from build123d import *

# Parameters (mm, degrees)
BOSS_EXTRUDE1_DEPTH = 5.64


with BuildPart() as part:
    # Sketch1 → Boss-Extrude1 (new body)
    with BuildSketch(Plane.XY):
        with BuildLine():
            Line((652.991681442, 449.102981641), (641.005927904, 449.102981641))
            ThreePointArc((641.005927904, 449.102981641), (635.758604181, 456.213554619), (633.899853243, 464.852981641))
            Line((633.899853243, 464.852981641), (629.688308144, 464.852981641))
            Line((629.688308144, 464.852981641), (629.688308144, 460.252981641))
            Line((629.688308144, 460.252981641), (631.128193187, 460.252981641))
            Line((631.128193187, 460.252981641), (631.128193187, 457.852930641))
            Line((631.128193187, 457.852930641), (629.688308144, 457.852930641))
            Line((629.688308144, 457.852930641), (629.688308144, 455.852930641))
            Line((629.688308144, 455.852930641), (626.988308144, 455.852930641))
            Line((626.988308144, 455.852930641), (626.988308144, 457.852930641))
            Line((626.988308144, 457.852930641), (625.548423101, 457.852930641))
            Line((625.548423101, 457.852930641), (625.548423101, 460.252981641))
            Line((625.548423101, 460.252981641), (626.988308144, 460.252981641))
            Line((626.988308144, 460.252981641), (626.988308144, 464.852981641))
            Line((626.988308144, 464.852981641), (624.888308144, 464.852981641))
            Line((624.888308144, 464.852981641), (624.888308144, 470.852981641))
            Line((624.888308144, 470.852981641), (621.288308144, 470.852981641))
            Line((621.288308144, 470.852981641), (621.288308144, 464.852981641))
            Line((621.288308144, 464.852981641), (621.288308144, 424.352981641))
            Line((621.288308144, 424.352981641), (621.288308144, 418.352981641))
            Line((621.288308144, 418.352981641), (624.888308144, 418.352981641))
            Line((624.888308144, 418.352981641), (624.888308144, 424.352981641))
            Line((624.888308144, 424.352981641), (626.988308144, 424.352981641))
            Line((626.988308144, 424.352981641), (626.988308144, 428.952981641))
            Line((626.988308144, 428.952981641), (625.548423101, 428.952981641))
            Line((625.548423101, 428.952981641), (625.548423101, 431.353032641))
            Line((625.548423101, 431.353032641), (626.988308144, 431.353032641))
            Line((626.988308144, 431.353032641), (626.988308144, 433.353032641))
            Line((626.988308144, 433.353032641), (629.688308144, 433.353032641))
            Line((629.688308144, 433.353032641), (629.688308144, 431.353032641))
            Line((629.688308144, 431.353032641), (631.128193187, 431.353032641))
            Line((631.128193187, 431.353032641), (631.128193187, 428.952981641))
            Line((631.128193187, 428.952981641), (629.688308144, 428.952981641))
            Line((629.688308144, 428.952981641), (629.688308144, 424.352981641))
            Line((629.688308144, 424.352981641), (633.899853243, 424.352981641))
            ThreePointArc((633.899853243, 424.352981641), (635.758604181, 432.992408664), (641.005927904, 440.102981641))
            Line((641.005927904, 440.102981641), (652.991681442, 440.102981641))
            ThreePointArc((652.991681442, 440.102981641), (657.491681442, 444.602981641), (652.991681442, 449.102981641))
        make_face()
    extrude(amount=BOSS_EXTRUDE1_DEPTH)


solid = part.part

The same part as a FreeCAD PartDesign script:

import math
import FreeCAD as App
import Part
import Sketcher

doc = App.newDocument("Part")
body = doc.addObject("PartDesign::Body", "Body")

# Sketch on XY plane
sketch1 = doc.addObject("Sketcher::SketchObject", "Sketch")
body.addObject(sketch1)
sketch1.AttachmentSupport = (doc.XY_Plane, [""])
sketch1.MapMode = "FlatFace"
sketch1.addGeometry(Part.LineSegment(App.Vector(653, 449.1, 0), App.Vector(641, 449.1, 0)), False)
sketch1.addGeometry(Part.ArcOfCircle(Part.Circle(App.Vector(654.9, 464.9, 0), App.Vector(0, 0, 1), 21), math.radians(180), math.radians(229)), False)
sketch1.addGeometry(Part.LineSegment(App.Vector(633.9, 464.9, 0), App.Vector(629.7, 464.9, 0)), False)
sketch1.addGeometry(Part.LineSegment(App.Vector(629.7, 464.9, 0), App.Vector(629.7, 460.3, 0)), False)
sketch1.addGeometry(Part.LineSegment(App.Vector(629.7, 460.3, 0), App.Vector(631.1, 460.3, 0)), False)
sketch1.addGeometry(Part.LineSegment(App.Vector(631.1, 460.3, 0), App.Vector(631.1, 457.9, 0)), False)
sketch1.addGeometry(Part.LineSegment(App.Vector(631.1, 457.9, 0), App.Vector(629.7, 457.9, 0)), False)
sketch1.addGeometry(Part.LineSegment(App.Vector(629.7, 457.9, 0), App.Vector(629.7, 455.9, 0)), False)
sketch1.addGeometry(Part.LineSegment(App.Vector(629.7, 455.9, 0), App.Vector(627, 455.9, 0)), False)
sketch1.addGeometry(Part.LineSegment(App.Vector(627, 455.9, 0), App.Vector(627, 457.9, 0)), False)
sketch1.addGeometry(Part.LineSegment(App.Vector(627, 457.9, 0), App.Vector(625.5, 457.9, 0)), False)
sketch1.addGeometry(Part.LineSegment(App.Vector(625.5, 457.9, 0), App.Vector(625.5, 460.3, 0)), False)
sketch1.addGeometry(Part.LineSegment(App.Vector(625.5, 460.3, 0), App.Vector(627, 460.3, 0)), False)
sketch1.addGeometry(Part.LineSegment(App.Vector(627, 460.3, 0), App.Vector(627, 464.9, 0)), False)
sketch1.addGeometry(Part.LineSegment(App.Vector(627, 464.9, 0), App.Vector(624.9, 464.9, 0)), False)
sketch1.addGeometry(Part.LineSegment(App.Vector(624.9, 464.9, 0), App.Vector(624.9, 470.9, 0)), False)
sketch1.addGeometry(Part.LineSegment(App.Vector(624.9, 470.9, 0), App.Vector(621.3, 470.9, 0)), False)
sketch1.addGeometry(Part.LineSegment(App.Vector(621.3, 470.9, 0), App.Vector(621.3, 418.4, 0)), False)
sketch1.addGeometry(Part.LineSegment(App.Vector(621.3, 418.4, 0), App.Vector(624.9, 418.4, 0)), False)
sketch1.addGeometry(Part.LineSegment(App.Vector(624.9, 418.4, 0), App.Vector(624.9, 424.4, 0)), False)
sketch1.addGeometry(Part.LineSegment(App.Vector(624.9, 424.4, 0), App.Vector(627, 424.4, 0)), False)
sketch1.addGeometry(Part.LineSegment(App.Vector(627, 424.4, 0), App.Vector(627, 429, 0)), False)
sketch1.addGeometry(Part.LineSegment(App.Vector(627, 429, 0), App.Vector(625.5, 429, 0)), False)
sketch1.addGeometry(Part.LineSegment(App.Vector(625.5, 429, 0), App.Vector(625.5, 431.4, 0)), False)
sketch1.addGeometry(Part.LineSegment(App.Vector(625.5, 431.4, 0), App.Vector(627, 431.4, 0)), False)
sketch1.addGeometry(Part.LineSegment(App.Vector(627, 431.4, 0), App.Vector(627, 433.4, 0)), False)
sketch1.addGeometry(Part.LineSegment(App.Vector(627, 433.4, 0), App.Vector(629.7, 433.4, 0)), False)
sketch1.addGeometry(Part.LineSegment(App.Vector(629.7, 433.4, 0), App.Vector(629.7, 431.4, 0)), False)
sketch1.addGeometry(Part.LineSegment(App.Vector(629.7, 431.4, 0), App.Vector(631.1, 431.4, 0)), False)
sketch1.addGeometry(Part.LineSegment(App.Vector(631.1, 431.4, 0), App.Vector(631.1, 429, 0)), False)
sketch1.addGeometry(Part.LineSegment(App.Vector(631.1, 429, 0), App.Vector(629.7, 429, 0)), False)
sketch1.addGeometry(Part.LineSegment(App.Vector(629.7, 429, 0), App.Vector(629.7, 424.4, 0)), False)
sketch1.addGeometry(Part.LineSegment(App.Vector(629.7, 424.4, 0), App.Vector(633.9, 424.4, 0)), False)
sketch1.addGeometry(Part.ArcOfCircle(Part.Circle(App.Vector(654.9, 424.4, 0), App.Vector(0, 0, 1), 21), math.radians(131), math.radians(180)), False)
sketch1.addGeometry(Part.LineSegment(App.Vector(641, 440.1, 0), App.Vector(653, 440.1, 0)), False)
sketch1.addGeometry(Part.ArcOfCircle(Part.Circle(App.Vector(653, 444.6, 0), App.Vector(0, 0, 1), 4.5), math.radians(-90), math.radians(90)), False)
sketch1.addConstraint(Sketcher.Constraint("Coincident", 0, 2, 1, 2))
sketch1.addConstraint(Sketcher.Constraint("Coincident", 1, 1, 2, 1))
sketch1.addConstraint(Sketcher.Constraint("Coincident", 2, 2, 3, 1))
sketch1.addConstraint(Sketcher.Constraint("Coincident", 3, 2, 4, 1))
sketch1.addConstraint(Sketcher.Constraint("Coincident", 4, 2, 5, 1))
sketch1.addConstraint(Sketcher.Constraint("Coincident", 5, 2, 6, 1))
sketch1.addConstraint(Sketcher.Constraint("Coincident", 6, 2, 7, 1))
sketch1.addConstraint(Sketcher.Constraint("Coincident", 7, 2, 8, 1))
sketch1.addConstraint(Sketcher.Constraint("Coincident", 8, 2, 9, 1))
sketch1.addConstraint(Sketcher.Constraint("Coincident", 9, 2, 10, 1))
sketch1.addConstraint(Sketcher.Constraint("Coincident", 10, 2, 11, 1))
sketch1.addConstraint(Sketcher.Constraint("Coincident", 11, 2, 12, 1))
sketch1.addConstraint(Sketcher.Constraint("Coincident", 12, 2, 13, 1))
sketch1.addConstraint(Sketcher.Constraint("Coincident", 13, 2, 14, 1))
sketch1.addConstraint(Sketcher.Constraint("Coincident", 14, 2, 15, 1))
sketch1.addConstraint(Sketcher.Constraint("Coincident", 15, 2, 16, 1))
sketch1.addConstraint(Sketcher.Constraint("Coincident", 16, 2, 17, 1))
sketch1.addConstraint(Sketcher.Constraint("Coincident", 17, 2, 18, 1))
sketch1.addConstraint(Sketcher.Constraint("Coincident", 18, 2, 19, 1))
sketch1.addConstraint(Sketcher.Constraint("Coincident", 19, 2, 20, 1))
sketch1.addConstraint(Sketcher.Constraint("Coincident", 20, 2, 21, 1))
sketch1.addConstraint(Sketcher.Constraint("Coincident", 21, 2, 22, 1))
sketch1.addConstraint(Sketcher.Constraint("Coincident", 22, 2, 23, 1))
sketch1.addConstraint(Sketcher.Constraint("Coincident", 23, 2, 24, 1))
sketch1.addConstraint(Sketcher.Constraint("Coincident", 24, 2, 25, 1))
sketch1.addConstraint(Sketcher.Constraint("Coincident", 25, 2, 26, 1))
sketch1.addConstraint(Sketcher.Constraint("Coincident", 26, 2, 27, 1))
sketch1.addConstraint(Sketcher.Constraint("Coincident", 27, 2, 28, 1))
sketch1.addConstraint(Sketcher.Constraint("Coincident", 28, 2, 29, 1))
sketch1.addConstraint(Sketcher.Constraint("Coincident", 29, 2, 30, 1))
sketch1.addConstraint(Sketcher.Constraint("Coincident", 30, 2, 31, 1))
sketch1.addConstraint(Sketcher.Constraint("Coincident", 31, 2, 32, 1))
sketch1.addConstraint(Sketcher.Constraint("Coincident", 32, 2, 33, 2))
sketch1.addConstraint(Sketcher.Constraint("Coincident", 33, 1, 34, 1))
sketch1.addConstraint(Sketcher.Constraint("Tangent", 34, 2, 35, 1))
sketch1.addConstraint(Sketcher.Constraint("Tangent", 35, 2, 0, 1))
sketch1.addConstraint(Sketcher.Constraint("Horizontal", 0))
sketch1.addConstraint(Sketcher.Constraint("Horizontal", 2))
sketch1.addConstraint(Sketcher.Constraint("Vertical", 3))
sketch1.addConstraint(Sketcher.Constraint("Horizontal", 4))
sketch1.addConstraint(Sketcher.Constraint("Vertical", 5))
sketch1.addConstraint(Sketcher.Constraint("Horizontal", 6))
sketch1.addConstraint(Sketcher.Constraint("Vertical", 7))
sketch1.addConstraint(Sketcher.Constraint("Horizontal", 8))
sketch1.addConstraint(Sketcher.Constraint("Vertical", 9))
sketch1.addConstraint(Sketcher.Constraint("Horizontal", 10))
sketch1.addConstraint(Sketcher.Constraint("Vertical", 11))
sketch1.addConstraint(Sketcher.Constraint("Horizontal", 12))
sketch1.addConstraint(Sketcher.Constraint("Vertical", 13))
sketch1.addConstraint(Sketcher.Constraint("Horizontal", 14))
sketch1.addConstraint(Sketcher.Constraint("Vertical", 15))
sketch1.addConstraint(Sketcher.Constraint("Horizontal", 16))
sketch1.addConstraint(Sketcher.Constraint("Vertical", 17))
sketch1.addConstraint(Sketcher.Constraint("Horizontal", 18))
sketch1.addConstraint(Sketcher.Constraint("Vertical", 19))
sketch1.addConstraint(Sketcher.Constraint("Horizontal", 20))
sketch1.addConstraint(Sketcher.Constraint("Vertical", 21))
sketch1.addConstraint(Sketcher.Constraint("Horizontal", 22))
sketch1.addConstraint(Sketcher.Constraint("Vertical", 23))
sketch1.addConstraint(Sketcher.Constraint("Horizontal", 24))
sketch1.addConstraint(Sketcher.Constraint("Vertical", 25))
sketch1.addConstraint(Sketcher.Constraint("Horizontal", 26))
sketch1.addConstraint(Sketcher.Constraint("Vertical", 27))
sketch1.addConstraint(Sketcher.Constraint("Horizontal", 28))
sketch1.addConstraint(Sketcher.Constraint("Vertical", 29))
sketch1.addConstraint(Sketcher.Constraint("Horizontal", 30))
sketch1.addConstraint(Sketcher.Constraint("Vertical", 31))
sketch1.addConstraint(Sketcher.Constraint("Horizontal", 32))
sketch1.addConstraint(Sketcher.Constraint("Horizontal", 34))
sketch1.addConstraint(Sketcher.Constraint("Equal", 1, 33))
sketch1.addConstraint(Sketcher.Constraint("Horizontal", 6, 2, 9, 2))
sketch1.addConstraint(Sketcher.Constraint("Horizontal", 4, 2, 11, 2))
sketch1.addConstraint(Sketcher.Constraint("Horizontal", 2, 2, 13, 2))
sketch1.addConstraint(Sketcher.Constraint("Horizontal", 33, 3, 19, 2))
sketch1.addConstraint(Sketcher.Constraint("Horizontal", 24, 2, 27, 2))
sketch1.addConstraint(Sketcher.Constraint("Horizontal", 22, 2, 29, 2))
sketch1.addConstraint(Sketcher.Constraint("Horizontal", 20, 2, 31, 2))
sketch1.addConstraint(Sketcher.Constraint("Vertical", 1, 3, 33, 3))
sketch1.addConstraint(Sketcher.Constraint("Vertical", 3, 2, 6, 2))
sketch1.addConstraint(Sketcher.Constraint("Vertical", 9, 2, 12, 2))
sketch1.addConstraint(Sketcher.Constraint("Vertical", 15, 2, 18, 2))
sketch1.addConstraint(Sketcher.Constraint("Vertical", 13, 2, 20, 2))
sketch1.addConstraint(Sketcher.Constraint("Vertical", 11, 2, 22, 2))
sketch1.addConstraint(Sketcher.Constraint("Vertical", 21, 2, 24, 2))
sketch1.addConstraint(Sketcher.Constraint("Vertical", 7, 2, 26, 2))
sketch1.addConstraint(Sketcher.Constraint("Vertical", 5, 2, 28, 2))
sketch1.addConstraint(Sketcher.Constraint("Vertical", 27, 2, 30, 2))
sketch1.addConstraint(Sketcher.Constraint("Vertical", 0, 2, 33, 1))
sketch1.addConstraint(Sketcher.Constraint("Equal", 6, 10))
sketch1.addConstraint(Sketcher.Constraint("Equal", 15, 19))
sketch1.addConstraint(Sketcher.Constraint("Equal", 13, 21))
sketch1.addConstraint(Sketcher.Constraint("Equal", 11, 23))
sketch1.addConstraint(Sketcher.Constraint("Equal", 9, 25))
sketch1.addConstraint(Sketcher.Constraint("Radius", 35, 4.5))
sketch1.addConstraint(Sketcher.Constraint("DistanceY", 7, 2, 7, 1, 2.0))
sketch1.addConstraint(Sketcher.Constraint("DistanceY", 15, 1, 15, 2, 6.0))
sketch1.addConstraint(Sketcher.Constraint("DistanceX", 8, 2, 8, 1, 2.7))
sketch1.addConstraint(Sketcher.Constraint("DistanceX", 14, 2, 14, 1, 2.1))
sketch1.addConstraint(Sketcher.Constraint("DistanceX", 16, 2, 16, 1, 3.6))
sketch1.addConstraint(Sketcher.Constraint("DistanceY", 3, 2, 3, 1, 4.6))
sketch1.addConstraint(Sketcher.Constraint("DistanceY", 17, 2, 17, 1, 52.5))
sketch1.addConstraint(Sketcher.Constraint("DistanceY", 33, 3, 1, 3, 40.5))
sketch1.addConstraint(Sketcher.Constraint("Radius", 1, 21.007294))
sketch1.addConstraint(Sketcher.Constraint("DistanceY", 5, 2, 5, 1, 2.400051))
sketch1.addConstraint(Sketcher.Constraint("DistanceX", 0, 2, 0, 1, 11.985754))
sketch1.addConstraint(Sketcher.Constraint("DistanceX", 2, 2, 2, 1, 4.211545))
sketch1.addConstraint(Sketcher.Constraint("DistanceX", 4, 1, 4, 2, 1.439885))
sketch1.addConstraint(Sketcher.Constraint("DistanceY", -1, 1, 1, 3, 464.852982))
sketch1.addConstraint(Sketcher.Constraint("DistanceX", -1, 1, 35, 3, 652.991681))
pad1 = doc.addObject("PartDesign::Pad", "Pad")
body.addObject(pad1)
pad1.Profile = sketch1
pad1.Length = 5.64

doc.recompute()
